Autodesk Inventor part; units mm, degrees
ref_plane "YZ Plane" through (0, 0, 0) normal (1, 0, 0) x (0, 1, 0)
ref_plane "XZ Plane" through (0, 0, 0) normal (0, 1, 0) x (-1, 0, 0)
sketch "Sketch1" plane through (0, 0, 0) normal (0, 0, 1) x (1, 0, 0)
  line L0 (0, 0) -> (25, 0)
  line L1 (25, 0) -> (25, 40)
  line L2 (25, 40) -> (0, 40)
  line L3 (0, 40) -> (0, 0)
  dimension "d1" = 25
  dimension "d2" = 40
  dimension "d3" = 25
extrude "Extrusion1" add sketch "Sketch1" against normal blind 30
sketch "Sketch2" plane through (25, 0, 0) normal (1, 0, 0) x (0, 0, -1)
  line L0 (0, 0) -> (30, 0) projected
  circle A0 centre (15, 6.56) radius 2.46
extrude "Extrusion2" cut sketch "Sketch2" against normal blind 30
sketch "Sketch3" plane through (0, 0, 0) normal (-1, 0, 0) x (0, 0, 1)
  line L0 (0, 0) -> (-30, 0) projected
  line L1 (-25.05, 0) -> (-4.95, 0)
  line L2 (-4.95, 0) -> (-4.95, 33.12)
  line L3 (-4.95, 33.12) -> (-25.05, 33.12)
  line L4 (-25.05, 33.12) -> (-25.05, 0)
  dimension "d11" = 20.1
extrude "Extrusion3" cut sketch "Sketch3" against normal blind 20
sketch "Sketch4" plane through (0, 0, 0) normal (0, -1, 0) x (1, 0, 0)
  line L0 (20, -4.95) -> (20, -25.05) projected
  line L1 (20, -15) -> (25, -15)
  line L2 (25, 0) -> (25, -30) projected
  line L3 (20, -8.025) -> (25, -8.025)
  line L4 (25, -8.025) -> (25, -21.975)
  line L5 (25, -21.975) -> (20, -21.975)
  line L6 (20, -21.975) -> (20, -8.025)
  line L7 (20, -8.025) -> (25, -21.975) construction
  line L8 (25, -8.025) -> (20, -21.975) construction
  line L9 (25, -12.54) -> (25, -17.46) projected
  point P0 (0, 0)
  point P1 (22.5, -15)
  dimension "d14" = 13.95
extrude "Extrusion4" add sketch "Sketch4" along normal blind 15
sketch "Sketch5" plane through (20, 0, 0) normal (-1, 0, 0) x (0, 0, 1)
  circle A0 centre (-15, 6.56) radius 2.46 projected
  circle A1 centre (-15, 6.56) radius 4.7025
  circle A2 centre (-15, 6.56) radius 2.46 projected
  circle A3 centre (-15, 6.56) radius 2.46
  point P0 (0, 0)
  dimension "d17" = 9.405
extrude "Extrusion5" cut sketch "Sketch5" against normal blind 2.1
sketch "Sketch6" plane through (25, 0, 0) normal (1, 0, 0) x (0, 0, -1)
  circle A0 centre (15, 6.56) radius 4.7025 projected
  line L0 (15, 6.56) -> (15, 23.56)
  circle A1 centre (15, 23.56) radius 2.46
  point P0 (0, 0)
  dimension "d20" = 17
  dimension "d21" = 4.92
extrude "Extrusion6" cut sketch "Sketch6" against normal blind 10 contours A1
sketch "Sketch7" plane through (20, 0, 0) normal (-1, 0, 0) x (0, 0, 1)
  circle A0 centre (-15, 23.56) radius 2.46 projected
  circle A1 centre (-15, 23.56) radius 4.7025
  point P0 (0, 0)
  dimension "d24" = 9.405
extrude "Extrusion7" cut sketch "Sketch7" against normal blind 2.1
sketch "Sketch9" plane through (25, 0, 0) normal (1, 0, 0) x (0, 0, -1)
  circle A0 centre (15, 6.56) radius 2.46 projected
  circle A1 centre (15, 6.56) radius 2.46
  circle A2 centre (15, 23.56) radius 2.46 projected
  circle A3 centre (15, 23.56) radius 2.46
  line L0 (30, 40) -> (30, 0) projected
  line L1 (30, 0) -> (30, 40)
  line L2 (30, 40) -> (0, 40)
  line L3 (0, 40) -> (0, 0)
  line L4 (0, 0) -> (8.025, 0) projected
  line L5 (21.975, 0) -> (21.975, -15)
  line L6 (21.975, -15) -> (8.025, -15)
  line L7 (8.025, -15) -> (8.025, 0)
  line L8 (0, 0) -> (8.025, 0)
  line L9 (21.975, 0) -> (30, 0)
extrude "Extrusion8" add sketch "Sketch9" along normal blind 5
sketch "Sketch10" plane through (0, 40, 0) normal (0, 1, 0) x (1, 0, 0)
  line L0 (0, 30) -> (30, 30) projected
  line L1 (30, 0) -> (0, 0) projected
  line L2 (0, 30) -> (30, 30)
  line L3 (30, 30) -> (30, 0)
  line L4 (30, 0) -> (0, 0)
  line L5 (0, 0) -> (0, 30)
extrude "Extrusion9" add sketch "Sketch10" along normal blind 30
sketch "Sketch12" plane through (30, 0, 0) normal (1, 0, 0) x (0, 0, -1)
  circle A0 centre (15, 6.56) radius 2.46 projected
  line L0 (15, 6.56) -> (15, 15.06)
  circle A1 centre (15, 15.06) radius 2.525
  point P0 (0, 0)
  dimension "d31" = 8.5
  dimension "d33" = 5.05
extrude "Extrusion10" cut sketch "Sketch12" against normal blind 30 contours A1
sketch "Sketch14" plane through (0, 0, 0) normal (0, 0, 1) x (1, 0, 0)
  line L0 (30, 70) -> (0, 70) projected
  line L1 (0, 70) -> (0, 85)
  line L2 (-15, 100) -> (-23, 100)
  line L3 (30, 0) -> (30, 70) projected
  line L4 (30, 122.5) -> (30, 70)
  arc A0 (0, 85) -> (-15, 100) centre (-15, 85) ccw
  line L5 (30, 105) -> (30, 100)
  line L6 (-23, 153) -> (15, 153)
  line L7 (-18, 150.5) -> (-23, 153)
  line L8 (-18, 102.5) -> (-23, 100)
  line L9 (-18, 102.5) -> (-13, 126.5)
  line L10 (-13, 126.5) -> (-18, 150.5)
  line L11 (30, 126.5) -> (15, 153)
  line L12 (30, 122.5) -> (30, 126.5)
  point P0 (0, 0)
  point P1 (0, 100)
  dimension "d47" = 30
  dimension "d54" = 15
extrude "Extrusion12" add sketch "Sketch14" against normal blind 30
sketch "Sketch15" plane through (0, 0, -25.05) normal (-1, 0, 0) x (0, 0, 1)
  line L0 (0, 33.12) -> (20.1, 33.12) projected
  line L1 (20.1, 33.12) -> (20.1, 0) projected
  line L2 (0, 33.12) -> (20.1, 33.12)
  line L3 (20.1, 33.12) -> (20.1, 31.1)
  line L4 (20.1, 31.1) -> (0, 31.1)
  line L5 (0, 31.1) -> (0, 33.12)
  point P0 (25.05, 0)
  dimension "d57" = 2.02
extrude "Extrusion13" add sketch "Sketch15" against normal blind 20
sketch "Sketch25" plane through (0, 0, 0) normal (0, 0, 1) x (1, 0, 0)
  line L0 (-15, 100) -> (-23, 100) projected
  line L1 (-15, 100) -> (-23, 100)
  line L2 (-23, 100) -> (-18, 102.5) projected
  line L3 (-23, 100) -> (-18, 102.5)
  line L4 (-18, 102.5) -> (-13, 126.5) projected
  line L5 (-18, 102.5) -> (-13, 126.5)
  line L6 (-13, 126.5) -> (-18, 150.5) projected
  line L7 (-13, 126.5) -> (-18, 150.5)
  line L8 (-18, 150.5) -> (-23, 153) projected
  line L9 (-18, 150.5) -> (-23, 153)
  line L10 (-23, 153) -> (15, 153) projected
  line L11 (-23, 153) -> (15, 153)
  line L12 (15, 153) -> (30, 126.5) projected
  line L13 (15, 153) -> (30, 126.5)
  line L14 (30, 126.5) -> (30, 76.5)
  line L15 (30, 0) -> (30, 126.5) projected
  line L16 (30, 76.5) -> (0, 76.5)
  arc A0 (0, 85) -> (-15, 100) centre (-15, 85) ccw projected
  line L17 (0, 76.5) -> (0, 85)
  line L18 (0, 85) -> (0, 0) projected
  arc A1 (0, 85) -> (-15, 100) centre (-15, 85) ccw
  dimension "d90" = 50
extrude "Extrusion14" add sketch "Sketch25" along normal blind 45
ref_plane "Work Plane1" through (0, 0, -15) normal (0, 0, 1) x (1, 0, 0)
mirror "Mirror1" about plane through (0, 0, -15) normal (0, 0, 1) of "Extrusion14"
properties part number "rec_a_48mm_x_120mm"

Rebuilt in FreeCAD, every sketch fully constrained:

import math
import FreeCAD as App
import Part
import Sketcher

V = App.Vector

doc = App.newDocument("Part")
params = doc.addObject("Spreadsheet::Sheet", "Params")
for row, (alias, value) in enumerate([
    ("sketch1_width", "25 mm"),
    ("sketch1_height", "40 mm"),
    ("pad1_length", "30 mm"),
    ("sketch2_diameter", "4.92 mm"),
    ("pocket1_length", "30 mm"),
    ("sketch3_height", "20.1 mm"),
    ("sketch3_width", "33.12 mm"),
    ("pocket2_length", "20 mm"),
    ("sketch4_height", "13.95 mm"),
    ("sketch4_width", "5 mm"),
    ("pad2_length", "15 mm"),
    ("sketch5_diameter", "4.92 mm"),
    ("pocket3_length", "2.1 mm"),
    ("sketch6_diameter", "4.92 mm"),
    ("pocket4_length", "10 mm"),
    ("sketch7_diameter", "4.92 mm"),
    ("pocket5_length", "2.1 mm"),
    ("sketch8_diameter", "4.92 mm"),
    ("sketch8_width", "40 mm"),
    ("sketch8_width2", "15 mm"),
    ("sketch8_height", "30 mm"),
    ("sketch8_height2", "13.95 mm"),
    ("pad3_length", "5 mm"),
    ("sketch9_width", "30 mm"),
    ("pad4_length", "30 mm"),
    ("sketch10_diameter", "5.05 mm"),
    ("pocket6_length", "30 mm"),
    ("sketch11_radius", "15 mm"),
    ("sketch11_width", "30 mm"),
    ("sketch11_height", "15 mm"),
    ("sketch11_width2", "38 mm"),
    ("sketch11_height2", "56.5 mm"),
    ("pad5_length", "30 mm"),
    ("sketch12_width", "2.02 mm"),
    ("sketch12_height", "20.1 mm"),
    ("pad6_length", "20 mm"),
    ("sketch13_height", "50 mm"),
    ("sketch13_radius", "15 mm"),
    ("sketch13_width", "8 mm"),
    ("sketch13_width2", "30 mm"),
    ("sketch13_width3", "38 mm"),
    ("pad7_length", "45 mm"),
], start=1):
    params.set(f"A{row}", alias)
    params.set(f"B{row}", "=" + value)
    params.setAlias(f"B{row}", alias)

body = doc.addObject("PartDesign::Body", "Body")

sketch1 = body.newObject("Sketcher::SketchObject", "Sketch")
sketch1.AttachmentSupport = (doc.getObject("XY_Plane"), [""])
sketch1.MapMode = "FlatFace"
sketch1.addGeometry([
    Part.LineSegment(V(0, 40, 0), V(0, 0, 0)),
    Part.LineSegment(V(0, 0, 0), V(25, 0, 0)),
    Part.LineSegment(V(25, 0, 0), V(25, 40, 0)),
    Part.LineSegment(V(25, 40, 0), V(0, 40, 0)),
], False)
sketch1.addConstraint([
    Sketcher.Constraint("Coincident", 0, 2, 1, 1),
    Sketcher.Constraint("Coincident", 1, 2, 2, 1),
    Sketcher.Constraint("Coincident", 2, 2, 3, 1),
    Sketcher.Constraint("Coincident", 3, 2, 0, 1),
    Sketcher.Constraint("Vertical", 0),
    Sketcher.Constraint("Horizontal", 1),
    Sketcher.Constraint("Vertical", 2),
    Sketcher.Constraint("Horizontal", 3),
    Sketcher.Constraint("Coincident", 0, 2, -1, 1),
    Sketcher.Constraint("DistanceX", 1, 1, 1, 2, 25.0),
    Sketcher.Constraint("DistanceY", 0, 2, 0, 1, 40.0),
])
sketch1.setExpression("Constraints[9]", "Params.sketch1_width")
sketch1.setExpression("Constraints[10]", "Params.sketch1_height")
pad1 = body.newObject("PartDesign::Pad", "Pad")
pad1.Profile = sketch1
pad1.setExpression("Length", "Params.pad1_length")
pad1.Reversed = True

sketch2 = body.newObject("Sketcher::SketchObject", "Sketch001")
sketch2.AttachmentSupport = (doc.getObject("YZ_Plane"), [""])
sketch2.MapMode = "FlatFace"
sketch2.AttachmentOffset = App.Placement(V(0, 0, 25), App.Rotation())
sketch2.addGeometry(Part.Circle(V(6.6, -15, 0), V(0, 0, 1), 2.5), False)
sketch2.addConstraint([
    Sketcher.Constraint("Diameter", 0, 4.92),
    Sketcher.Constraint("DistanceY", 0, 3, -1, 1, 15.0),
    Sketcher.Constraint("DistanceX", -1, 1, 0, 3, 6.56),
])
sketch2.setExpression("Constraints[0]", "Params.sketch2_diameter")
pocket1 = body.newObject("PartDesign::Pocket", "Pocket")
pocket1.Profile = sketch2
pocket1.setExpression("Length", "Params.pocket1_length")

sketch3 = body.newObject("Sketcher::SketchObject", "Sketch002")
sketch3.AttachmentSupport = (doc.getObject("YZ_Plane"), [""])
sketch3.MapMode = "FlatFace"
sketch3.addGeometry([
    Part.LineSegment(V(0, -25, 0), V(0, -5, 0)),
    Part.LineSegment(V(0, -5, 0), V(33, -5, 0)),
    Part.LineSegment(V(33, -5, 0), V(33, -25, 0)),
    Part.LineSegment(V(33, -25, 0), V(0, -25, 0)),
], False)
sketch3.addConstraint([
    Sketcher.Constraint("Coincident", 0, 2, 1, 1),
    Sketcher.Constraint("Coincident", 1, 2, 2, 1),
    Sketcher.Constraint("Coincident", 2, 2, 3, 1),
    Sketcher.Constraint("Coincident", 3, 2, 0, 1),
    Sketcher.Constraint("Vertical", 0),
    Sketcher.Constraint("Horizontal", 1),
    Sketcher.Constraint("Vertical", 2),
    Sketcher.Constraint("Horizontal", 3),
    Sketcher.Constraint("PointOnObject", 0, 2, -2),
    Sketcher.Constraint("DistanceY", 0, 1, 0, 2, 20.1),
    Sketcher.Constraint("DistanceX", 1, 1, 1, 2, 33.12),
    Sketcher.Constraint("DistanceY", 0, 2, -1, 1, 4.95),
])
sketch3.setExpression("Constraints[9]", "Params.sketch3_height")
sketch3.setExpression("Constraints[10]", "Params.sketch3_width")
pocket2 = body.newObject("PartDesign::Pocket", "Pocket001")
pocket2.Profile = sketch3
pocket2.setExpression("Length", "Params.pocket2_length")
pocket2.Reversed = True

sketch4 = body.newObject("Sketcher::SketchObject", "Sketch003")
sketch4.AttachmentSupport = (doc.getObject("XZ_Plane"), [""])
sketch4.MapMode = "FlatFace"
sketch4.addGeometry([
    Part.LineSegment(V(25, -8, 0), V(20, -8, 0)),
    Part.LineSegment(V(20, -8, 0), V(20, -22, 0)),
    Part.LineSegment(V(20, -22, 0), V(25, -22, 0)),
    Part.LineSegment(V(25, -22, 0), V(25, -8, 0)),
], False)
sketch4.addConstraint([
    Sketcher.Constraint("Coincident", 0, 2, 1, 1),
    Sketcher.Constraint("Coincident", 1, 2, 2, 1),
    Sketcher.Constraint("Coincident", 2, 2, 3, 1),
    Sketcher.Constraint("Coincident", 3, 2, 0, 1),
    Sketcher.Constraint("Horizontal", 0),
    Sketcher.Constraint("Vertical", 1),
    Sketcher.Constraint("Horizontal", 2),
    Sketcher.Constraint("Vertical", 3),
    Sketcher.Constraint("DistanceY", 1, 2, 1, 1, 13.95),
    Sketcher.Constraint("DistanceX", 0, 2, 0, 1, 5.0),
    Sketcher.Constraint("DistanceX", -1, 1, 0, 2, 20.0),
    Sketcher.Constraint("DistanceY", 0, 2, -1, 1, 8.025),
])
sketch4.setExpression("Constraints[8]", "Params.sketch4_height")
sketch4.setExpression("Constraints[9]", "Params.sketch4_width")
pad2 = body.newObject("PartDesign::Pad", "Pad001")
pad2.Profile = sketch4
pad2.setExpression("Length", "Params.pad2_length")

sketch5 = body.newObject("Sketcher::SketchObject", "Sketch004")
sketch5.AttachmentSupport = (doc.getObject("YZ_Plane"), [""])
sketch5.MapMode = "FlatFace"
sketch5.AttachmentOffset = App.Placement(V(0, 0, 20), App.Rotation())
sketch5.addGeometry([
    Part.Circle(V(6.6, -15, 0), V(0, 0, 1), 4.7),
    Part.Circle(V(6.6, -15, 0), V(0, 0, 1), 2.5),
], False)
sketch5.addConstraint([
    Sketcher.Constraint("Coincident", 1, 3, 0, 3),
    Sketcher.Constraint("Diameter", 0, 9.405),
    Sketcher.Constraint("Diameter", 1, 4.92),
    Sketcher.Constraint("DistanceY", 0, 3, -1, 1, 15.0),
    Sketcher.Constraint("DistanceX", -1, 1, 0, 3, 6.56),
])
sketch5.setExpression("Constraints[2]", "Params.sketch5_diameter")
pocket3 = body.newObject("PartDesign::Pocket", "Pocket002")
pocket3.Profile = sketch5
pocket3.setExpression("Length", "Params.pocket3_length")
pocket3.Reversed = True

sketch6 = body.newObject("Sketcher::SketchObject", "Sketch005")
sketch6.AttachmentSupport = (doc.getObject("YZ_Plane"), [""])
sketch6.MapMode = "FlatFace"
sketch6.AttachmentOffset = App.Placement(V(0, 0, 25), App.Rotation())
sketch6.addGeometry(Part.Circle(V(23.6, -15, 0), V(0, 0, 1), 2.5), False)
sketch6.addConstraint([
    Sketcher.Constraint("Diameter", 0, 4.92),
    Sketcher.Constraint("DistanceY", 0, 3, -1, 1, 15.0),
    Sketcher.Constraint("DistanceX", -1, 1, 0, 3, 23.56),
])
sketch6.setExpression("Constraints[0]", "Params.sketch6_diameter")
pocket4 = body.newObject("PartDesign::Pocket", "Pocket003")
pocket4.Profile = sketch6
pocket4.setExpression("Length", "Params.pocket4_length")

sketch7 = body.newObject("Sketcher::SketchObject", "Sketch006")
sketch7.AttachmentSupport = (doc.getObject("YZ_Plane"), [""])
sketch7.MapMode = "FlatFace"
sketch7.AttachmentOffset = App.Placement(V(0, 0, 20), App.Rotation())
sketch7.addGeometry([
    Part.Circle(V(23.6, -15, 0), V(0, 0, 1), 4.7),
    Part.Circle(V(23.6, -15, 0), V(0, 0, 1), 2.5),
], False)
sketch7.addConstraint([
    Sketcher.Constraint("Coincident", 1, 3, 0, 3),
    Sketcher.Constraint("Diameter", 0, 9.405),
    Sketcher.Constraint("Diameter", 1, 4.92),
    Sketcher.Constraint("DistanceY", 0, 3, -1, 1, 15.0),
    Sketcher.Constraint("DistanceX", -1, 1, 0, 3, 23.56),
])
sketch7.setExpression("Constraints[2]", "Params.sketch7_diameter")
pocket5 = body.newObject("PartDesign::Pocket", "Pocket004")
pocket5.Profile = sketch7
pocket5.setExpression("Length", "Params.pocket5_length")
pocket5.Reversed = True

sketch8 = body.newObject("Sketcher::SketchObject", "Sketch007")
sketch8.AttachmentSupport = (doc.getObject("YZ_Plane"), [""])
sketch8.MapMode = "FlatFace"
sketch8.AttachmentOffset = App.Placement(V(0, 0, 25), App.Rotation())
sketch8.addGeometry([
    Part.LineSegment(V(0, -30, 0), V(40, -30, 0)),
    Part.LineSegment(V(40, -30, 0), V(40, 0, 0)),
    Part.LineSegment(V(40, 0, 0), V(0, 0, 0)),
    Part.LineSegment(V(0, 0, 0), V(0, -8, 0)),
    Part.LineSegment(V(0, -8, 0), V(-15, -8, 0)),
    Part.LineSegment(V(-15, -8, 0), V(-15, -22, 0)),
    Part.LineSegment(V(-15, -22, 0), V(0, -22, 0)),
    Part.LineSegment(V(0, -22, 0), V(0, -30, 0)),
    Part.Circle(V(6.6, -15, 0), V(0, 0, 1), 2.5),
    Part.Circle(V(23.6, -15, 0), V(0, 0, 1), 2.5),
], False)
sketch8.addConstraint([
    Sketcher.Constraint("Coincident", 0, 2, 1, 1),
    Sketcher.Constraint("Coincident", 1, 2, 2, 1),
    Sketcher.Constraint("Coincident", 2, 2, 3, 1),
    Sketcher.Constraint("Coincident", 3, 2, 4, 1),
    Sketcher.Constraint("Coincident", 4, 2, 5, 1),
    Sketcher.Constraint("Coincident", 5, 2, 6, 1),
    Sketcher.Constraint("Coincident", 6, 2, 7, 1),
    Sketcher.Constraint("Coincident", 7, 2, 0, 1),
    Sketcher.Constraint("Horizontal", 0),
    Sketcher.Constraint("Vertical", 1),
    Sketcher.Constraint("Horizontal", 2),
    Sketcher.Constraint("Vertical", 3),
    Sketcher.Constraint("Horizontal", 4),
    Sketcher.Constraint("Vertical", 5),
    Sketcher.Constraint("Horizontal", 6),
    Sketcher.Constraint("Vertical", 7),
    Sketcher.Constraint("Coincident", 2, 2, -1, 1),
    Sketcher.Constraint("Equal", 8, 9),
    Sketcher.Constraint("PointOnObject", 6, 2, -2),
    Sketcher.Constraint("Horizontal", 8, 3, 9, 3),
    Sketcher.Constraint("Equal", 3, 7),
    Sketcher.Constraint("Diameter", 8, 4.92),
    Sketcher.Constraint("DistanceX", 0, 1, 0, 2, 40.0),
    Sketcher.Constraint("DistanceX", 4, 2, 4, 1, 15.0),
    Sketcher.Constraint("DistanceY", 1, 1, 1, 2, 30.0),
    Sketcher.Constraint("DistanceY", 8, 3, -1, 1, 15.0),
    Sketcher.Constraint("DistanceX", 8, 3, 9, 3, 17.0),
    Sketcher.Constraint("DistanceY", 5, 2, 5, 1, 13.95),
    Sketcher.Constraint("DistanceX", -1, 1, 8, 3, 6.56),
])
sketch8.setExpression("Constraints[21]", "Params.sketch8_diameter")
sketch8.setExpression("Constraints[22]", "Params.sketch8_width")
sketch8.setExpression("Constraints[23]", "Params.sketch8_width2")
sketch8.setExpression("Constraints[24]", "Params.sketch8_height")
sketch8.setExpression("Constraints[27]", "Params.sketch8_height2")
pad3 = body.newObject("PartDesign::Pad", "Pad002")
pad3.Profile = sketch8
pad3.setExpression("Length", "Params.pad3_length")

sketch9 = body.newObject("Sketcher::SketchObject", "Sketch008")
sketch9.AttachmentSupport = (doc.getObject("XZ_Plane"), [""])
sketch9.MapMode = "FlatFace"
sketch9.AttachmentOffset = App.Placement(V(0, 0, -40), App.Rotation())
sketch9.addGeometry([
    Part.LineSegment(V(30, -30, 0), V(0, -30, 0)),
    Part.LineSegment(V(0, -30, 0), V(0, 0, 0)),
    Part.LineSegment(V(0, 0, 0), V(30, 0, 0)),
    Part.LineSegment(V(30, 0, 0), V(30, -30, 0)),
], False)
sketch9.addConstraint([
    Sketcher.Constraint("Coincident", 0, 2, 1, 1),
    Sketcher.Constraint("Coincident", 1, 2, 2, 1),
    Sketcher.Constraint("Coincident", 2, 2, 3, 1),
    Sketcher.Constraint("Coincident", 3, 2, 0, 1),
    Sketcher.Constraint("Horizontal", 0),
    Sketcher.Constraint("Vertical", 1),
    Sketcher.Constraint("Horizontal", 2),
    Sketcher.Constraint("Vertical", 3),
    Sketcher.Constraint("Coincident", 1, 2, -1, 1),
    Sketcher.Constraint("Equal", 2, 1),
    Sketcher.Constraint("DistanceX", 0, 2, 0, 1, 30.0),
])
sketch9.setExpression("Constraints[10]", "Params.sketch9_width")
pad4 = body.newObject("PartDesign::Pad", "Pad003")
pad4.Profile = sketch9
pad4.setExpression("Length", "Params.pad4_length")
pad4.Reversed = True

sketch10 = body.newObject("Sketcher::SketchObject", "Sketch009")
sketch10.AttachmentSupport = (doc.getObject("YZ_Plane"), [""])
sketch10.MapMode = "FlatFace"
sketch10.AttachmentOffset = App.Placement(V(0, 0, 30), App.Rotation())
sketch10.addGeometry(Part.Circle(V(15.1, -15, 0), V(0, 0, 1), 2.5), False)
sketch10.addConstraint([
    Sketcher.Constraint("Diameter", 0, 5.05),
    Sketcher.Constraint("DistanceY", 0, 3, -1, 1, 15.0),
    Sketcher.Constraint("DistanceX", -1, 1, 0, 3, 15.06),
])
sketch10.setExpression("Constraints[0]", "Params.sketch10_diameter")
pocket6 = body.newObject("PartDesign::Pocket", "Pocket005")
pocket6.Profile = sketch10
pocket6.setExpression("Length", "Params.pocket6_length")

sketch11 = body.newObject("Sketcher::SketchObject", "Sketch010")
sketch11.AttachmentSupport = (doc.getObject("XY_Plane"), [""])
sketch11.MapMode = "FlatFace"
sketch11.addGeometry([
    Part.LineSegment(V(0, 70, 0), V(30, 70, 0)),
    Part.LineSegment(V(30, 70, 0), V(30, 126, 0)),
    Part.LineSegment(V(30, 126, 0), V(15, 153, 0)),
    Part.LineSegment(V(15, 153, 0), V(-23, 153, 0)),
    Part.LineSegment(V(-23, 153, 0), V(-18, 150, 0)),
    Part.LineSegment(V(-18, 150, 0), V(-13, 126, 0)),
    Part.LineSegment(V(-13, 126, 0), V(-18, 102, 0)),
    Part.LineSegment(V(-18, 102, 0), V(-23, 100, 0)),
    Part.LineSegment(V(-23, 100, 0), V(-15, 100, 0)),
    Part.ArcOfCircle(Part.Circle(V(-15, 85, 0), V(0, 0, 1), 15), math.radians(0), math.radians(90)),
    Part.LineSegment(V(0, 85, 0), V(0, 70, 0)),
], False)
sketch11.addConstraint([
    Sketcher.Constraint("Coincident", 0, 2, 1, 1),
    Sketcher.Constraint("Coincident", 1, 2, 2, 1),
    Sketcher.Constraint("Coincident", 2, 2, 3, 1),
    Sketcher.Constraint("Coincident", 3, 2, 4, 1),
    Sketcher.Constraint("Coincident", 4, 2, 5, 1),
    Sketcher.Constraint("Coincident", 5, 2, 6, 1),
    Sketcher.Constraint("Coincident", 6, 2, 7, 1),
    Sketcher.Constraint("Coincident", 7, 2, 8, 1),
    Sketcher.Constraint("Tangent", 8, 2, 9, 2),
    Sketcher.Constraint("Tangent", 9, 1, 10, 1),
    Sketcher.Constraint("Coincident", 10, 2, 0, 1),
    Sketcher.Constraint("Horizontal", 0),
    Sketcher.Constraint("Vertical", 1),
    Sketcher.Constraint("Horizontal", 3),
    Sketcher.Constraint("Horizontal", 8),
    Sketcher.Constraint("Vertical", 10),
    Sketcher.Constraint("PointOnObject", 9, 1, -2),
    Sketcher.Constraint("Horizontal", 1, 2, 5, 2),
    Sketcher.Constraint("Vertical", 4, 2, 6, 2),
    Sketcher.Constraint("Vertical", 3, 2, 7, 2),
    Sketcher.Constraint("Equal", 5, 6),
    Sketcher.Constraint("Equal", 4, 7),
    Sketcher.Constraint("Radius", 9, 15.0),
    Sketcher.Constraint("DistanceX", 0, 1, 0, 2, 30.0),
    Sketcher.Constraint("DistanceY", 10, 2, 10, 1, 15.0),
    Sketcher.Constraint("DistanceX", -1, 1, 2, 2, 15.0),
    Sketcher.Constraint("DistanceX", 3, 2, 3, 1, 38.0),
    Sketcher.Constraint("DistanceY", 1, 1, 1, 2, 56.5),
    Sketcher.Constraint("DistanceY", -1, 1, 9, 3, 85.0),
    Sketcher.Constraint("DistanceX", 4, 2, -1, 1, 18.0),
    Sketcher.Constraint("DistanceX", 5, 2, -1, 1, 13.0),
    Sketcher.Constraint("DistanceY", 1, 2, 4, 2, 24.0),
])
sketch11.setExpression("Constraints[22]", "Params.sketch11_radius")
sketch11.setExpression("Constraints[23]", "Params.sketch11_width")
sketch11.setExpression("Constraints[24]", "Params.sketch11_height")
sketch11.setExpression("Constraints[26]", "Params.sketch11_width2")
sketch11.setExpression("Constraints[27]", "Params.sketch11_height2")
pad5 = body.newObject("PartDesign::Pad", "Pad004")
pad5.Profile = sketch11
pad5.setExpression("Length", "Params.pad5_length")
pad5.Reversed = True

sketch12 = body.newObject("Sketcher::SketchObject", "Sketch011")
sketch12.AttachmentSupport = (doc.getObject("YZ_Plane"), [""])
sketch12.MapMode = "FlatFace"
sketch12.addGeometry([
    Part.LineSegment(V(33.1, -5, 0), V(33.1, -25.1, 0)),
    Part.LineSegment(V(33.1, -25.1, 0), V(31.1, -25.1, 0)),
    Part.LineSegment(V(31.1, -25.1, 0), V(31.1, -5, 0)),
    Part.LineSegment(V(31.1, -5, 0), V(33.1, -5, 0)),
], False)
sketch12.addConstraint([
    Sketcher.Constraint("Coincident", 0, 2, 1, 1),
    Sketcher.Constraint("Coincident", 1, 2, 2, 1),
    Sketcher.Constraint("Coincident", 2, 2, 3, 1),
    Sketcher.Constraint("Coincident", 3, 2, 0, 1),
    Sketcher.Constraint("Vertical", 0),
    Sketcher.Constraint("Horizontal", 1),
    Sketcher.Constraint("Vertical", 2),
    Sketcher.Constraint("Horizontal", 3),
    Sketcher.Constraint("DistanceX", 1, 2, 1, 1, 2.02),
    Sketcher.Constraint("DistanceY", 0, 2, 0, 1, 20.1),
    Sketcher.Constraint("DistanceX", -1, 1, 1, 2, 31.1),
    Sketcher.Constraint("DistanceY", 0, 2, -1, 1, 25.05),
])
sketch12.setExpression("Constraints[8]", "Params.sketch12_width")
sketch12.setExpression("Constraints[9]", "Params.sketch12_height")
pad6 = body.newObject("PartDesign::Pad", "Pad005")
pad6.Profile = sketch12
pad6.setExpression("Length", "Params.pad6_length")

sketch13 = body.newObject("Sketcher::SketchObject", "Sketch012")
sketch13.AttachmentSupport = (doc.getObject("XY_Plane"), [""])
sketch13.MapMode = "FlatFace"
sketch13.addGeometry([
    Part.LineSegment(V(-23, 100, 0), V(-15, 100, 0)),
    Part.ArcOfCircle(Part.Circle(V(-15, 85, 0), V(0, 0, 1), 15), math.radians(0), math.radians(90)),
    Part.LineSegment(V(0, 85, 0), V(0, 76, 0)),
    Part.LineSegment(V(0, 76, 0), V(30, 76, 0)),
    Part.LineSegment(V(30, 76, 0), V(30, 126, 0)),
    Part.LineSegment(V(30, 126, 0), V(15, 153, 0)),
    Part.LineSegment(V(15, 153, 0), V(-23, 153, 0)),
    Part.LineSegment(V(-23, 153, 0), V(-18, 150, 0)),
    Part.LineSegment(V(-18, 150, 0), V(-13, 126, 0)),
    Part.LineSegment(V(-13, 126, 0), V(-18, 102, 0)),
    Part.LineSegment(V(-18, 102, 0), V(-23, 100, 0)),
], False)
sketch13.addConstraint([
    Sketcher.Constraint("Tangent", 0, 2, 1, 2),
    Sketcher.Constraint("Tangent", 1, 1, 2, 1),
    Sketcher.Constraint("Coincident", 2, 2, 3, 1),
    Sketcher.Constraint("Coincident", 3, 2, 4, 1),
    Sketcher.Constraint("Coincident", 4, 2, 5, 1),
    Sketcher.Constraint("Coincident", 5, 2, 6, 1),
    Sketcher.Constraint("Coincident", 6, 2, 7, 1),
    Sketcher.Constraint("Coincident", 7, 2, 8, 1),
    Sketcher.Constraint("Coincident", 8, 2, 9, 1),
    Sketcher.Constraint("Coincident", 9, 2, 10, 1),
    Sketcher.Constraint("Coincident", 10, 2, 0, 1),
    Sketcher.Constraint("Horizontal", 0),
    Sketcher.Constraint("Vertical", 2),
    Sketcher.Constraint("Horizontal", 3),
    Sketcher.Constraint("Vertical", 4),
    Sketcher.Constraint("Horizontal", 6),
    Sketcher.Constraint("PointOnObject", 1, 1, -2),
    Sketcher.Constraint("Horizontal", 4, 2, 8, 2),
    Sketcher.Constraint("Vertical", 7, 2, 9, 2),
    Sketcher.Constraint("Vertical", 6, 2, 10, 2),
    Sketcher.Constraint("Equal", 8, 9),
    Sketcher.Constraint("Equal", 7, 10),
    Sketcher.Constraint("DistanceY", 4, 1, 4, 2, 50.0),
    Sketcher.Constraint("Radius", 1, 15.0),
    Sketcher.Constraint("DistanceX", 0, 1, 0, 2, 8.0),
    Sketcher.Constraint("DistanceX", 3, 1, 3, 2, 30.0),
    Sketcher.Constraint("DistanceX", 6, 2, 6, 1, 38.0),
    Sketcher.Constraint("DistanceY", 2, 2, 2, 1, 8.5),
    Sketcher.Constraint("DistanceY", -1, 1, 1, 3, 85.0),
    Sketcher.Constraint("DistanceX", 7, 2, -1, 1, 18.0),
    Sketcher.Constraint("DistanceX", 8, 2, -1, 1, 13.0),
    Sketcher.Constraint("DistanceY", 4, 2, 7, 2, 24.0),
])
sketch13.setExpression("Constraints[22]", "Params.sketch13_height")
sketch13.setExpression("Constraints[23]", "Params.sketch13_radius")
sketch13.setExpression("Constraints[24]", "Params.sketch13_width")
sketch13.setExpression("Constraints[25]", "Params.sketch13_width2")
sketch13.setExpression("Constraints[26]", "Params.sketch13_width3")
pad7 = body.newObject("PartDesign::Pad", "Pad006")
pad7.Profile = sketch13
pad7.setExpression("Length", "Params.pad7_length")
doc.recompute()

datumplane = body.newObject("PartDesign::Plane", "DatumPlane")
datumplane.AttachmentSupport = (doc.getObject("XY_Plane"), [""])
datumplane.MapMode = "FlatFace"
datumplane.AttachmentOffset = App.Placement(V(0, 0, -15), App.Rotation())
mirrored = body.newObject("PartDesign::Mirrored", "Mirrored")
mirrored.Originals = [pad7]
mirrored.MirrorPlane = (datumplane, [""])
body.Tip = mirrored

doc.recompute()
